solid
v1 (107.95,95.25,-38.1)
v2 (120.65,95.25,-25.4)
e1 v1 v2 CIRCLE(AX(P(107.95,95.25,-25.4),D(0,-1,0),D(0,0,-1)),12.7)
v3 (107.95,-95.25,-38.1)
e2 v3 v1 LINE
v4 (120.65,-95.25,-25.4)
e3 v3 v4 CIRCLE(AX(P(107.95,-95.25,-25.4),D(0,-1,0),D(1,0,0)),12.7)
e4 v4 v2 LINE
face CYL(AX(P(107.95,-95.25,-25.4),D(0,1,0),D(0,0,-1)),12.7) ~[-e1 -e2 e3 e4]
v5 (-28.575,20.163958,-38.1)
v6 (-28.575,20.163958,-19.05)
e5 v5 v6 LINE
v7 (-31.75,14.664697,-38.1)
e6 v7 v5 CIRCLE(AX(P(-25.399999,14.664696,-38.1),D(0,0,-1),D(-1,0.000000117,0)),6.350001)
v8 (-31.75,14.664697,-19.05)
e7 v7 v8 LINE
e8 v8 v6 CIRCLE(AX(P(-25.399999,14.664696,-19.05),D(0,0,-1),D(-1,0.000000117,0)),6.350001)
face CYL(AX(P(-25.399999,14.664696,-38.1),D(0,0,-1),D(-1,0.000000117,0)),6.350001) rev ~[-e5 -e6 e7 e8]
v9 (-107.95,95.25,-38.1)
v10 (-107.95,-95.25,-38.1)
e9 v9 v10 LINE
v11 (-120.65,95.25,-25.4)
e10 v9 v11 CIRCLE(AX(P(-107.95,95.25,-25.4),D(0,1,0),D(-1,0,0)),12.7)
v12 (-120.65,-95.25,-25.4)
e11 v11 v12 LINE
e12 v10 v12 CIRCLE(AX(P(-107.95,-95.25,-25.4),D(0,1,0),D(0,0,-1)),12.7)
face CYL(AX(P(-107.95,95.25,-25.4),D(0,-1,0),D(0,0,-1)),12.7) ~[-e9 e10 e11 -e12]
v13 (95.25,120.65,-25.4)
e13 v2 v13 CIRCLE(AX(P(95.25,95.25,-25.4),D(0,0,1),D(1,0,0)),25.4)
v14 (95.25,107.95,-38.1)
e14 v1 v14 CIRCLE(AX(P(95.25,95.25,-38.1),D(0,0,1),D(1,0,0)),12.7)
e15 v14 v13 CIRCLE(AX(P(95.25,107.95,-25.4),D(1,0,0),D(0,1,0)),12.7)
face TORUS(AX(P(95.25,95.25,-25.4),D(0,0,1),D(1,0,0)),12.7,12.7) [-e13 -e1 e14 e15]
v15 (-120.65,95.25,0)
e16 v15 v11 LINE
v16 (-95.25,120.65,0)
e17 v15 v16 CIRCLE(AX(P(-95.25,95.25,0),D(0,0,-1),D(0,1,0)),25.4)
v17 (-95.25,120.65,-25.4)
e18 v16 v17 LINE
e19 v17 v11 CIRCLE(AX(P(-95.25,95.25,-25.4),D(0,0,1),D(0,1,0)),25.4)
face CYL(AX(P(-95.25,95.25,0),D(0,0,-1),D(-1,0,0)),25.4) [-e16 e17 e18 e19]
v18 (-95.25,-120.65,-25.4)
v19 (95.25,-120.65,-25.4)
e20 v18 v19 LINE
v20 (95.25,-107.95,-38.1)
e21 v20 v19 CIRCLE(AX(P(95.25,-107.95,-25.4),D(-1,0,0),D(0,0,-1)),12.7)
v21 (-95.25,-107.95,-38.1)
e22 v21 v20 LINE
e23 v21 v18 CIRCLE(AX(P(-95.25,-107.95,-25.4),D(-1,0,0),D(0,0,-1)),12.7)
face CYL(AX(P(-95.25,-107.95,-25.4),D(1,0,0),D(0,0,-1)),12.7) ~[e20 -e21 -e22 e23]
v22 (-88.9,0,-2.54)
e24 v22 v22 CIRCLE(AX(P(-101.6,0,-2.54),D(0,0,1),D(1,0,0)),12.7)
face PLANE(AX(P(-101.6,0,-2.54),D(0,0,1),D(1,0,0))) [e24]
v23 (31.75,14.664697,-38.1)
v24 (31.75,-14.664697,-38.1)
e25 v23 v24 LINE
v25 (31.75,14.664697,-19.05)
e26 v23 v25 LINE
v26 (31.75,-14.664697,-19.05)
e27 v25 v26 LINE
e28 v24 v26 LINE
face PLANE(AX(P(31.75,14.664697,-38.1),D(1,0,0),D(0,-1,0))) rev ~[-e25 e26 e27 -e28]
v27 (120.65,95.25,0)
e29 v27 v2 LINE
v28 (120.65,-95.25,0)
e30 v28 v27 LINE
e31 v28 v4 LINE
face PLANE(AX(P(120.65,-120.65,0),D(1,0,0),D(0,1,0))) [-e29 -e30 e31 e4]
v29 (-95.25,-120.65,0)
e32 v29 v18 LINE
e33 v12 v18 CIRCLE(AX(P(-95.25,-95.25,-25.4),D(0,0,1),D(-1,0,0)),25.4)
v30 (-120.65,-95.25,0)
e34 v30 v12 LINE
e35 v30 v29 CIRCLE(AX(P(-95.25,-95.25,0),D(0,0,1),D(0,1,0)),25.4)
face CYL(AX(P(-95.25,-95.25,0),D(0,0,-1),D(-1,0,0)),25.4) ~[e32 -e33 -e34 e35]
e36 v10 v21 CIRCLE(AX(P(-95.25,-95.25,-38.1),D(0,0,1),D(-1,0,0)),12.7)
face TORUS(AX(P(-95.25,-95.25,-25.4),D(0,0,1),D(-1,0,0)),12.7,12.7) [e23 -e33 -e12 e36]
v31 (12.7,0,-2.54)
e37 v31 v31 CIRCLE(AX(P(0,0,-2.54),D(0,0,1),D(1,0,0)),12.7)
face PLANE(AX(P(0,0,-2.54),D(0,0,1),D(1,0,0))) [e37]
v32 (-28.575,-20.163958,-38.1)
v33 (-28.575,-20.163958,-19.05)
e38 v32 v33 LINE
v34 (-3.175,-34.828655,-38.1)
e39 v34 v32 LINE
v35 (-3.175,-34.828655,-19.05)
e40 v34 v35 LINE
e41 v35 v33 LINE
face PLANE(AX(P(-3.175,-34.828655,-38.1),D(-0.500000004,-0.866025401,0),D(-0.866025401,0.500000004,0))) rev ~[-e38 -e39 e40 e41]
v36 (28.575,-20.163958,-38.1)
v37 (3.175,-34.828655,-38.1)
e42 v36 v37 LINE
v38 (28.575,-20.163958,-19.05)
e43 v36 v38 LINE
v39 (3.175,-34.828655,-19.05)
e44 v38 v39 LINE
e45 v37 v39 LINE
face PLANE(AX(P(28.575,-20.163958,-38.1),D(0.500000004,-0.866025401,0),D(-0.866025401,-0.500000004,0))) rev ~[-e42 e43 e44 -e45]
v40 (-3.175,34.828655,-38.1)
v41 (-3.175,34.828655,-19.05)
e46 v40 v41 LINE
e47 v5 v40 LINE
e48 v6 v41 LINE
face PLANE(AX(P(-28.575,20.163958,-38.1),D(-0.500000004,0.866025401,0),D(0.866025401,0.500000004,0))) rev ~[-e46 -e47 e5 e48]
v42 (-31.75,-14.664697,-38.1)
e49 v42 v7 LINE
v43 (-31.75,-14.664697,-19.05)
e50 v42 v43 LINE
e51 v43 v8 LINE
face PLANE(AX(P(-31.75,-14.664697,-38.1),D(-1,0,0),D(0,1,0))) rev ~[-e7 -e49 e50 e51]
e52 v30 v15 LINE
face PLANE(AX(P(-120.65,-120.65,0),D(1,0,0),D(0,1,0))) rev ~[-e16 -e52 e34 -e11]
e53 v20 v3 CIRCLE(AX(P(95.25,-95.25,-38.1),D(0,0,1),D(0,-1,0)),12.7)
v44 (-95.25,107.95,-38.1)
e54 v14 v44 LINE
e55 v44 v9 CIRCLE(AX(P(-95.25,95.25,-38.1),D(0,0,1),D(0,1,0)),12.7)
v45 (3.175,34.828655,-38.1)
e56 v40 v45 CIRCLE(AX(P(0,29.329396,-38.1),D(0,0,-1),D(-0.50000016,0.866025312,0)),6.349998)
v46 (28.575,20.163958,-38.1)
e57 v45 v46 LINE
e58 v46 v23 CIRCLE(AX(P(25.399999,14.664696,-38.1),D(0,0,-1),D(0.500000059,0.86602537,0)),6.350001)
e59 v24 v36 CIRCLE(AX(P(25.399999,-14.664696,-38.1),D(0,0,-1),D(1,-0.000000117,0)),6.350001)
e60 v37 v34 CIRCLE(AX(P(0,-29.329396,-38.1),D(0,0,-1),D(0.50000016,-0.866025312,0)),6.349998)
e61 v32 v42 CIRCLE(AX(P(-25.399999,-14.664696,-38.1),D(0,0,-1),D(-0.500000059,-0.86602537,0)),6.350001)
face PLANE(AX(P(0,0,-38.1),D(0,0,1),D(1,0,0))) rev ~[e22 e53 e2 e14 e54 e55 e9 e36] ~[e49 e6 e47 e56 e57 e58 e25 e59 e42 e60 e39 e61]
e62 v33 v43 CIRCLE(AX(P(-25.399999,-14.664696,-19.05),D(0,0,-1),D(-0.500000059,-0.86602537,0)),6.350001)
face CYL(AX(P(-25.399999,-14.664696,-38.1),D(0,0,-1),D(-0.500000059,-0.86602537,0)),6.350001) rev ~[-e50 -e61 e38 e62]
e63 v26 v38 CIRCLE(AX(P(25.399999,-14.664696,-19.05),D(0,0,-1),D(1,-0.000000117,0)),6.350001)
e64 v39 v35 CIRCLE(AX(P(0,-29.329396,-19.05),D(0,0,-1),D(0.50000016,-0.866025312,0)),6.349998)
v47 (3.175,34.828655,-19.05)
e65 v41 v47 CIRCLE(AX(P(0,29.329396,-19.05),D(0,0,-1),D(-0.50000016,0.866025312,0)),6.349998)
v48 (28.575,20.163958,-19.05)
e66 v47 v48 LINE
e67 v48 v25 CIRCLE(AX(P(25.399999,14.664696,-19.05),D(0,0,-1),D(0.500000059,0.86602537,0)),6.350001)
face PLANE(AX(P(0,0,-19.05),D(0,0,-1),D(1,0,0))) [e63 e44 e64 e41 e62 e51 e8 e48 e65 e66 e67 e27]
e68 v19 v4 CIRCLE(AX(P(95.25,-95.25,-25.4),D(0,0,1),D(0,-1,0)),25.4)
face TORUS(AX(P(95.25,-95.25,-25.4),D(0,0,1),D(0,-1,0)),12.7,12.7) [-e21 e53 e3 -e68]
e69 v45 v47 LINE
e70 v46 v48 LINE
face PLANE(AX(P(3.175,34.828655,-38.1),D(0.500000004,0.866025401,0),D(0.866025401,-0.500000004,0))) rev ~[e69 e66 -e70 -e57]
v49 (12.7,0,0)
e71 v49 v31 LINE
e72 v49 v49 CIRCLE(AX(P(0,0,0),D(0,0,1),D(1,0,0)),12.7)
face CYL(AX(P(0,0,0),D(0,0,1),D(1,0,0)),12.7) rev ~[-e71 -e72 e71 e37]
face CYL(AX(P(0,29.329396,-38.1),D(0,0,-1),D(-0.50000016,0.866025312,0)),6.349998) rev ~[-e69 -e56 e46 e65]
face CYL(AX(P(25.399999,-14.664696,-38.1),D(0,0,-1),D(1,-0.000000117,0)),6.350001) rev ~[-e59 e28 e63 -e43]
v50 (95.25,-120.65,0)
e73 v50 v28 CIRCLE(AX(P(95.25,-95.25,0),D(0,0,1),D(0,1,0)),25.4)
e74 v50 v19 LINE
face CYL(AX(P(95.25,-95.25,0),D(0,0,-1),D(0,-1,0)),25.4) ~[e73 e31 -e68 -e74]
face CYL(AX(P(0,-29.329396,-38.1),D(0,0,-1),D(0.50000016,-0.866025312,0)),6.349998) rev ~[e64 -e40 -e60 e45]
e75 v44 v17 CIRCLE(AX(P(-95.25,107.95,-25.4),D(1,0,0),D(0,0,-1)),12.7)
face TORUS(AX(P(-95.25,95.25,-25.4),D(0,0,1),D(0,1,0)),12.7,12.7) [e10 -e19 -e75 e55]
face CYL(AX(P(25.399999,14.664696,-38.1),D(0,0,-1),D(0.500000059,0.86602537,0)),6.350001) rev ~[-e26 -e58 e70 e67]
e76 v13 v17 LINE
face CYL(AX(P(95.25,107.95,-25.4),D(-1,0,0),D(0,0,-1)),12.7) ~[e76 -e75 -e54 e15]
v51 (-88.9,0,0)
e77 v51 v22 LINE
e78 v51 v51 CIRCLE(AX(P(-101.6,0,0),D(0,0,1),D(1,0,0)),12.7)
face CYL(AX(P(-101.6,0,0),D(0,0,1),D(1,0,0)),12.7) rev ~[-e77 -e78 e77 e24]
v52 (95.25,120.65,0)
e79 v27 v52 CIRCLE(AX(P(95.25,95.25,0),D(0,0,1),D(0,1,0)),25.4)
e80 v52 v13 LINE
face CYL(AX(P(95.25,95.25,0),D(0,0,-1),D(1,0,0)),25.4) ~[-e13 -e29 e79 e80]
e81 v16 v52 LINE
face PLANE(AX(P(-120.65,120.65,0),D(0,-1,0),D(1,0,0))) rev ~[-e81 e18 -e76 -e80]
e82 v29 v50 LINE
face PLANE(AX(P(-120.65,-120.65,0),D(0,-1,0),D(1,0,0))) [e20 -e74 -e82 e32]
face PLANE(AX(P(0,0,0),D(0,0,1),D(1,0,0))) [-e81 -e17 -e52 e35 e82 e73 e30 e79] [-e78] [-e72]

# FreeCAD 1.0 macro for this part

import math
import FreeCAD as App
import Part
import Sketcher
Q = App.Units.Quantity


def edges_at(feature, points):
    """Names of the edges that pass closest to the given points."""
    edges = feature.Shape.Edges
    near = lambda p: min(range(len(edges)), key=lambda i: edges[i].distToShape(Part.Vertex(*p))[0])
    return sorted({f"Edge{near(p) + 1}" for p in points})


def add_polygon(sketch, points):
    """Adds a closed chain of lines whose ends are joined by coincident constraints."""
    first, n = sketch.GeometryCount, len(points)
    for a, b in zip(points, points[1:] + points[:1]):
        sketch.addGeometry(Part.LineSegment(App.Vector(*a, 0), App.Vector(*b, 0)), False)
    for i in range(n):
        sketch.addConstraint(Sketcher.Constraint("Coincident", first + i, 2, first + (i + 1) % n, 1))

doc = App.newDocument("Part")
body = doc.addObject("PartDesign::Body", "Body")

# Sketch on XY plane
sketch1 = body.newObject("Sketcher::SketchObject", "Sketch")
sketch1.AttachmentSupport = (doc.getObject("XY_Plane"), [""])
sketch1.MapMode = "FlatFace"
add_polygon(sketch1, [(-121, 121), (-121, -121), (121, -121), (121, 121)])  # lines 0-3
sketch1.addConstraint(Sketcher.Constraint("Vertical", 0))
sketch1.addConstraint(Sketcher.Constraint("Horizontal", 1))
sketch1.addConstraint(Sketcher.Constraint("Vertical", 2))
sketch1.addConstraint(Sketcher.Constraint("Horizontal", 3))
sketch1.addConstraint(Sketcher.Constraint("Symmetric", 0, 2, 2, 2, -1, 1))
sketch1.addConstraint(Sketcher.Constraint("Equal", 3, 0))
sketch1.addConstraint(Sketcher.Constraint("DistanceX", 1, 1, 1, 2, Q("9.5 in")))
pad1 = body.newObject("PartDesign::Pad", "Pad")
pad1.Profile = sketch1
pad1.Length = Q("1.5 in")
pad1.Reversed = True
doc.recompute()

fillet = body.newObject("PartDesign::Fillet", "Fillet")
fillet.Base = (pad1, edges_at(pad1, [
    (-120.65, -120.65, -19.05),
    (-120.65, 120.65, -19.05),
    (120.65, 120.65, -19.05),
    (120.65, -120.65, -19.05),
]))
fillet.Radius = Q("1 in")
doc.recompute()

fillet2 = body.newObject("PartDesign::Fillet", "Fillet001")
fillet2.Base = (fillet, edges_at(fillet, [(0, -120.65, -38.1)]))
fillet2.Radius = Q("0.5 in")

# Sketch on XY plane
sketch2 = body.newObject("Sketcher::SketchObject", "Sketch001")
sketch2.AttachmentSupport = (doc.getObject("XY_Plane"), [""])
sketch2.MapMode = "FlatFace"
sketch2.AttachmentOffset = App.Placement(App.Vector(0, 0, -1.5 * 25.4), App.Rotation())
sketch2.addGeometry(Part.LineSegment(App.Vector(-29, 20, 0), App.Vector(-3, 35, 0)), False)
sketch2.addGeometry(Part.ArcOfCircle(Part.Circle(App.Vector(0, 29, 0), App.Vector(0, 0, 1), 6), math.radians(60), math.radians(120)), False)
sketch2.addGeometry(Part.LineSegment(App.Vector(3, 35, 0), App.Vector(29, 20, 0)), False)
sketch2.addGeometry(Part.ArcOfCircle(Part.Circle(App.Vector(25, 15, 0), App.Vector(0, 0, 1), 6), math.radians(0), math.radians(60)), False)
sketch2.addGeometry(Part.LineSegment(App.Vector(32, 15, 0), App.Vector(32, -15, 0)), False)
sketch2.addGeometry(Part.ArcOfCircle(Part.Circle(App.Vector(25, -15, 0), App.Vector(0, 0, 1), 6), math.radians(-60), math.radians(0)), False)
sketch2.addGeometry(Part.LineSegment(App.Vector(29, -20, 0), App.Vector(3, -35, 0)), False)
sketch2.addGeometry(Part.ArcOfCircle(Part.Circle(App.Vector(0, -29, 0), App.Vector(0, 0, 1), 6), math.radians(-120), math.radians(-60)), False)
sketch2.addGeometry(Part.LineSegment(App.Vector(-3, -35, 0), App.Vector(-29, -20, 0)), False)
sketch2.addGeometry(Part.ArcOfCircle(Part.Circle(App.Vector(-25, -15, 0), App.Vector(0, 0, 1), 6), math.radians(-180), math.radians(-120)), False)
sketch2.addGeometry(Part.LineSegment(App.Vector(-32, -15, 0), App.Vector(-32, 15, 0)), False)
sketch2.addGeometry(Part.ArcOfCircle(Part.Circle(App.Vector(-25, 15, 0), App.Vector(0, 0, 1), 6), math.radians(120), math.radians(180)), False)
sketch2.addConstraint(Sketcher.Constraint("Tangent", 0, 2, 1, 2))
sketch2.addConstraint(Sketcher.Constraint("Tangent", 1, 1, 2, 1))
sketch2.addConstraint(Sketcher.Constraint("Tangent", 2, 2, 3, 2))
sketch2.addConstraint(Sketcher.Constraint("Tangent", 3, 1, 4, 1))
sketch2.addConstraint(Sketcher.Constraint("Tangent", 4, 2, 5, 2))
sketch2.addConstraint(Sketcher.Constraint("Tangent", 5, 1, 6, 1))
sketch2.addConstraint(Sketcher.Constraint("Tangent", 6, 2, 7, 2))
sketch2.addConstraint(Sketcher.Constraint("Tangent", 7, 1, 8, 1))
sketch2.addConstraint(Sketcher.Constraint("Tangent", 8, 2, 9, 2))
sketch2.addConstraint(Sketcher.Constraint("Tangent", 9, 1, 10, 1))
sketch2.addConstraint(Sketcher.Constraint("Tangent", 10, 2, 11, 2))
sketch2.addConstraint(Sketcher.Constraint("Tangent", 11, 1, 0, 1))
sketch2.addConstraint(Sketcher.Constraint("Vertical", 4))
sketch2.addConstraint(Sketcher.Constraint("Vertical", 10))
sketch2.addConstraint(Sketcher.Constraint("Equal", 3, 5))
sketch2.addConstraint(Sketcher.Constraint("Equal", 1, 7))
sketch2.addConstraint(Sketcher.Constraint("Equal", 5, 9))
sketch2.addConstraint(Sketcher.Constraint("Equal", 9, 11))
sketch2.addConstraint(Sketcher.Constraint("Symmetric", 1, 3, 7, 3, -1, 1))
sketch2.addConstraint(Sketcher.Constraint("Symmetric", 3, 3, 9, 3, -1, 1))
sketch2.addConstraint(Sketcher.Constraint("Symmetric", 0, 2, 1, 1, -2))
sketch2.addConstraint(Sketcher.Constraint("Parallel", 0, 6))
sketch2.addConstraint(Sketcher.Constraint("Radius", 1, Q("0.2499999 in")))
sketch2.addConstraint(Sketcher.Constraint("Radius", 3, Q("0.25 in")))
sketch2.addConstraint(Sketcher.Constraint("DistanceX", -1, 1, 3, 3, Q("1 in")))
sketch2.addConstraint(Sketcher.Constraint("Angle", 0, Q("30 deg")))
sketch2.addConstraint(Sketcher.Constraint("DistanceY", 4, 2, 4, 1, Q("29.329394 mm")))
pocket1 = body.newObject("PartDesign::Pocket", "Pocket")
pocket1.Profile = sketch2
pocket1.Length = Q("0.75 in")
pocket1.Reversed = True

# Sketch on XY plane
sketch3 = body.newObject("Sketcher::SketchObject", "Sketch002")
sketch3.AttachmentSupport = (doc.getObject("XY_Plane"), [""])
sketch3.MapMode = "FlatFace"
sketch3.addGeometry(Part.Circle(App.Vector(-102, 0, 0), App.Vector(0, 0, 1), 13), False)
sketch3.addConstraint(Sketcher.Constraint("PointOnObject", 0, 3, -1))
sketch3.addConstraint(Sketcher.Constraint("Diameter", 0, Q("1 in")))
sketch3.addConstraint(Sketcher.Constraint("DistanceX", 0, 3, -1, 1, Q("4 in")))
pocket2 = body.newObject("PartDesign::Pocket", "Pocket001")
pocket2.Profile = sketch3
pocket2.Length = Q("0.1 in")

# Sketch on XY plane
sketch4 = body.newObject("Sketcher::SketchObject", "Sketch003")
sketch4.AttachmentSupport = (doc.getObject("XY_Plane"), [""])
sketch4.MapMode = "FlatFace"
sketch4.addGeometry(Part.Circle(App.Vector(0, 0, 0), App.Vector(0, 0, 1), 13), False)
sketch4.addConstraint(Sketcher.Constraint("Coincident", 0, 3, -1, 1))
sketch4.addConstraint(Sketcher.Constraint("Diameter", 0, Q("1 in")))
pocket3 = body.newObject("PartDesign::Pocket", "Pocket002")
pocket3.Profile = sketch4
pocket3.Length = Q("0.1 in")

doc.recompute()
